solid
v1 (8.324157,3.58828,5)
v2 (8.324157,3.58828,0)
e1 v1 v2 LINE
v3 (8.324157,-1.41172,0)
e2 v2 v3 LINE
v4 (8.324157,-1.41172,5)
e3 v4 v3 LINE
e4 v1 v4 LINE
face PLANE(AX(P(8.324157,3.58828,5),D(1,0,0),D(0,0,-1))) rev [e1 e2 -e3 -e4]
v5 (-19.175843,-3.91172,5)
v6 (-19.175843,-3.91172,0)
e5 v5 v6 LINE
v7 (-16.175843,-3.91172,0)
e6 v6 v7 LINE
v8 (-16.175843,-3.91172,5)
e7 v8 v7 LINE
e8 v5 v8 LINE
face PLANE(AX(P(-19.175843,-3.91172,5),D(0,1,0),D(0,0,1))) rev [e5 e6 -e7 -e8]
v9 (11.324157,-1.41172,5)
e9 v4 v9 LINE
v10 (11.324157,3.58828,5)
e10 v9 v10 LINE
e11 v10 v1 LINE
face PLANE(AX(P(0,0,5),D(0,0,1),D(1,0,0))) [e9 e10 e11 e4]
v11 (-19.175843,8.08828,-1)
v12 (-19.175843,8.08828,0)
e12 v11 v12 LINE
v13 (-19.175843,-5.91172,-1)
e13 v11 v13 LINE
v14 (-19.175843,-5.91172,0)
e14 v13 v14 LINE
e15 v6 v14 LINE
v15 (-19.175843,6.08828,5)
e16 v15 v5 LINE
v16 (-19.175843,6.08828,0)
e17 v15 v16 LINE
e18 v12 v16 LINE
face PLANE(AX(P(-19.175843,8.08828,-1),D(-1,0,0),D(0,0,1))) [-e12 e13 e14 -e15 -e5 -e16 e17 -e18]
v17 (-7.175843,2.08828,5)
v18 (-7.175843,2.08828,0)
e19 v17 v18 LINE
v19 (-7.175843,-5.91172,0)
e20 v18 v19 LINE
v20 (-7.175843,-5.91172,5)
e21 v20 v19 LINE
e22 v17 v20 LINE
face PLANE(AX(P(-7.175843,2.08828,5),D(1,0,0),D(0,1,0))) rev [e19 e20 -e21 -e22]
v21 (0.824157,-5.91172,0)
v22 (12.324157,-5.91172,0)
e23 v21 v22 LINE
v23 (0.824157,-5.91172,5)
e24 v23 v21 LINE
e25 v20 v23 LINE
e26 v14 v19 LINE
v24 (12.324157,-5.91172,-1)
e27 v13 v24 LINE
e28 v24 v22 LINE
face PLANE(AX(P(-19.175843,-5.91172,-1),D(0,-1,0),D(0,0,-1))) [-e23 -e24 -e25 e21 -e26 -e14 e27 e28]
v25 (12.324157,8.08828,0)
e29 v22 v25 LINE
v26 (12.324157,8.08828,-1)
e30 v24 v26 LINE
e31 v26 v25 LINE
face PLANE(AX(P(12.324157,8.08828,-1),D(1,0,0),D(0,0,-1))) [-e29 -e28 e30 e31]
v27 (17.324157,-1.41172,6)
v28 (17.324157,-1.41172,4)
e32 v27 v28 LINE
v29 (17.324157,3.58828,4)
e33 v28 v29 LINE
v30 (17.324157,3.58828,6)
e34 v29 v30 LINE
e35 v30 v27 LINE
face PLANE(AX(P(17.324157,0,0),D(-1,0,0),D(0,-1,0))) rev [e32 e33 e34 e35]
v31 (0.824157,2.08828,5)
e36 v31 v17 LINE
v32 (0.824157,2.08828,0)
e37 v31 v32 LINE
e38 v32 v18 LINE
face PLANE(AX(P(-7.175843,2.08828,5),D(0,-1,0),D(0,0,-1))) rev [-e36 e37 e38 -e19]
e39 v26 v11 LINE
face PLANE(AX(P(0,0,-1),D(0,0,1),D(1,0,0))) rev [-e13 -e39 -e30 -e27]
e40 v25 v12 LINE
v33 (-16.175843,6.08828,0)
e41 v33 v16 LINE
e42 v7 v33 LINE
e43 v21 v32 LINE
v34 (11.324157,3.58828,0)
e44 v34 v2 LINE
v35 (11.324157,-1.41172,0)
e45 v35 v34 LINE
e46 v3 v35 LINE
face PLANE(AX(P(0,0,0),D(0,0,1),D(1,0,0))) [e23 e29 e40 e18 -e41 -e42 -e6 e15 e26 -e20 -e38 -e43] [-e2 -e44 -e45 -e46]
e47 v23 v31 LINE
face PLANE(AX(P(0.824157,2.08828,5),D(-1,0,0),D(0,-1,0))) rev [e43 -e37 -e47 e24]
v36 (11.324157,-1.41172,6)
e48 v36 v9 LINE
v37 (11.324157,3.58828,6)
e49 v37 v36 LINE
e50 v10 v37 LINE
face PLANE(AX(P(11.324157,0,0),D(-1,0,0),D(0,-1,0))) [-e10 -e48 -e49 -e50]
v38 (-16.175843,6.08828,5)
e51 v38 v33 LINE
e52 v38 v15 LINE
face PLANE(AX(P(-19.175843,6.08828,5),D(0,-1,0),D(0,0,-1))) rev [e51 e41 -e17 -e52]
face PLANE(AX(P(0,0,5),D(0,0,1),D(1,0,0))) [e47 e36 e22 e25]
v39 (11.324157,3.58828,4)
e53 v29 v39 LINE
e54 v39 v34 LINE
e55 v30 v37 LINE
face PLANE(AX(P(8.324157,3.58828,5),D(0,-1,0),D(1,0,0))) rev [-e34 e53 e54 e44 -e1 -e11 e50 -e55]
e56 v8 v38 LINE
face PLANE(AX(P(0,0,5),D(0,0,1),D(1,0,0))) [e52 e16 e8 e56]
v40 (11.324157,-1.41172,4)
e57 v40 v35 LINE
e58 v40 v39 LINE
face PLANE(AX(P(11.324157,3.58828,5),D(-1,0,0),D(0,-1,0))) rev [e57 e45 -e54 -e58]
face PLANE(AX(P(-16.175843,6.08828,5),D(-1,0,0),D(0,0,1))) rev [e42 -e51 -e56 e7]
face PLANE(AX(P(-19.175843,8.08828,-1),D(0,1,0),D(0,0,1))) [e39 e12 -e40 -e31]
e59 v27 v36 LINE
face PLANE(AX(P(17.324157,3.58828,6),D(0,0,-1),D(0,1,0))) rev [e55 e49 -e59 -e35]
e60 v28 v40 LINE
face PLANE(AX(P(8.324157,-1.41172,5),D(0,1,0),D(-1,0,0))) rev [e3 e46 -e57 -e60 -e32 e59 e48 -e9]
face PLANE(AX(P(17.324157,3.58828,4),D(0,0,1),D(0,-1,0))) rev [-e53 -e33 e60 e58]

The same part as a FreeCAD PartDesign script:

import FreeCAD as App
import Part
import Sketcher

doc = App.newDocument("Part")
body = doc.addObject("PartDesign::Body", "Body")

# Sketch on XY plane
sketch1 = body.newObject("Sketcher::SketchObject", "Sketch")
sketch1.AttachmentSupport = (doc.getObject("XY_Plane"), [""])
sketch1.MapMode = "FlatFace"
sketch1.addGeometry([
    Part.LineSegment(App.Vector(-19.175843, 8.08828, 0), App.Vector(-19.175843, -5.91172, 0)),
    Part.LineSegment(App.Vector(-19.175843, -5.91172, 0), App.Vector(12.324157, -5.91172, 0)),
    Part.LineSegment(App.Vector(12.324157, -5.91172, 0), App.Vector(12.324157, 8.08828, 0)),
    Part.LineSegment(App.Vector(12.324157, 8.08828, 0), App.Vector(-19.175843, 8.08828, 0)),
], False)
sketch1.addConstraint([
    Sketcher.Constraint("Coincident", 0, 2, 1, 1),
    Sketcher.Constraint("Coincident", 1, 2, 2, 1),
    Sketcher.Constraint("Coincident", 2, 2, 3, 1),
    Sketcher.Constraint("Coincident", 3, 2, 0, 1),
    Sketcher.Constraint("Vertical", 0),
    Sketcher.Constraint("Horizontal", 1),
    Sketcher.Constraint("Vertical", 2),
    Sketcher.Constraint("Horizontal", 3),
    Sketcher.Constraint("DistanceY", 0, 2, 0, 1, 14.0),
    Sketcher.Constraint("DistanceX", 1, 1, 1, 2, 31.5),
    Sketcher.Constraint("DistanceY", 0, 2, -1, 1, 5.91172),
    Sketcher.Constraint("DistanceX", 0, 2, -1, 1, 19.175843),
])
pad1 = body.newObject("PartDesign::Pad", "Pad")
pad1.Profile = sketch1
pad1.Length = 1
pad1.Reversed = True

# Sketch on XY plane
sketch2 = body.newObject("Sketcher::SketchObject", "Sketch001")
sketch2.AttachmentSupport = (doc.getObject("XY_Plane"), [""])
sketch2.MapMode = "FlatFace"
sketch2.addGeometry([
    Part.LineSegment(App.Vector(-7.175843, 2.08828, 0), App.Vector(-7.175843, -5.91172, 0)),
    Part.LineSegment(App.Vector(-7.175843, -5.91172, 0), App.Vector(0.824157, -5.91172, 0)),
    Part.LineSegment(App.Vector(0.824157, -5.91172, 0), App.Vector(0.824157, 2.08828, 0)),
    Part.LineSegment(App.Vector(0.824157, 2.08828, 0), App.Vector(-7.175843, 2.08828, 0)),
], False)
sketch2.addConstraint([
    Sketcher.Constraint("Coincident", 0, 2, 1, 1),
    Sketcher.Constraint("Coincident", 1, 2, 2, 1),
    Sketcher.Constraint("Coincident", 2, 2, 3, 1),
    Sketcher.Constraint("Coincident", 3, 2, 0, 1),
    Sketcher.Constraint("Vertical", 0),
    Sketcher.Constraint("Horizontal", 1),
    Sketcher.Constraint("Vertical", 2),
    Sketcher.Constraint("Horizontal", 3),
    Sketcher.Constraint("Equal", 3, 0),
    Sketcher.Constraint("DistanceX", 1, 1, 1, 2, 8.0),
    Sketcher.Constraint("DistanceY", 0, 2, -1, 1, 5.91172),
    Sketcher.Constraint("DistanceX", 0, 2, -1, 1, 7.175843),
])
pad2 = body.newObject("PartDesign::Pad", "Pad001")
pad2.Profile = sketch2
pad2.Length = 5

# Sketch on XY plane
sketch3 = body.newObject("Sketcher::SketchObject", "Sketch002")
sketch3.AttachmentSupport = (doc.getObject("XY_Plane"), [""])
sketch3.MapMode = "FlatFace"
sketch3.addGeometry([
    Part.LineSegment(App.Vector(8.324157, 3.58828, 0), App.Vector(8.324157, -1.41172, 0)),
    Part.LineSegment(App.Vector(8.324157, -1.41172, 0), App.Vector(11.324157, -1.41172, 0)),
    Part.LineSegment(App.Vector(11.324157, -1.41172, 0), App.Vector(11.324157, 3.58828, 0)),
    Part.LineSegment(App.Vector(11.324157, 3.58828, 0), App.Vector(8.324157, 3.58828, 0)),
], False)
sketch3.addConstraint([
    Sketcher.Constraint("Coincident", 0, 2, 1, 1),
    Sketcher.Constraint("Coincident", 1, 2, 2, 1),
    Sketcher.Constraint("Coincident", 2, 2, 3, 1),
    Sketcher.Constraint("Coincident", 3, 2, 0, 1),
    Sketcher.Constraint("Vertical", 0),
    Sketcher.Constraint("Horizontal", 1),
    Sketcher.Constraint("Vertical", 2),
    Sketcher.Constraint("Horizontal", 3),
    Sketcher.Constraint("DistanceX", 1, 1, 1, 2, 3.0),
    Sketcher.Constraint("DistanceY", 0, 2, 0, 1, 5.0),
    Sketcher.Constraint("DistanceY", 0, 2, -1, 1, 1.41172),
    Sketcher.Constraint("DistanceX", -1, 1, 0, 2, 8.324157),
])
pad3 = body.newObject("PartDesign::Pad", "Pad002")
pad3.Profile = sketch3
pad3.Length = 5

# Sketch on XY plane
sketch4 = body.newObject("Sketcher::SketchObject", "Sketch003")
sketch4.AttachmentSupport = (doc.getObject("XY_Plane"), [""])
sketch4.MapMode = "FlatFace"
sketch4.addGeometry([
    Part.LineSegment(App.Vector(-19.175843, 6.08828, 0), App.Vector(-19.175843, -3.91172, 0)),
    Part.LineSegment(App.Vector(-19.175843, -3.91172, 0), App.Vector(-16.175843, -3.91172, 0)),
    Part.LineSegment(App.Vector(-16.175843, -3.91172, 0), App.Vector(-16.175843, 6.08828, 0)),
    Part.LineSegment(App.Vector(-16.175843, 6.08828, 0), App.Vector(-19.175843, 6.08828, 0)),
], False)
sketch4.addConstraint([
    Sketcher.Constraint("Coincident", 0, 2, 1, 1),
    Sketcher.Constraint("Coincident", 1, 2, 2, 1),
    Sketcher.Constraint("Coincident", 2, 2, 3, 1),
    Sketcher.Constraint("Coincident", 3, 2, 0, 1),
    Sketcher.Constraint("Vertical", 0),
    Sketcher.Constraint("Horizontal", 1),
    Sketcher.Constraint("Vertical", 2),
    Sketcher.Constraint("Horizontal", 3),
    Sketcher.Constraint("DistanceX", 1, 1, 1, 2, 3.0),
    Sketcher.Constraint("DistanceY", 0, 2, 0, 1, 10.0),
    Sketcher.Constraint("DistanceY", 0, 2, -1, 1, 3.91172),
    Sketcher.Constraint("DistanceX", 0, 2, -1, 1, 19.175843),
])
pad4 = body.newObject("PartDesign::Pad", "Pad003")
pad4.Profile = sketch4
pad4.Length = 5

# Sketch on YZ plane
sketch5 = body.newObject("Sketcher::SketchObject", "Sketch004")
sketch5.AttachmentSupport = (doc.getObject("YZ_Plane"), [""])
sketch5.MapMode = "FlatFace"
sketch5.AttachmentOffset = App.Placement(App.Vector(0, 0, 11.324157), App.Rotation())
sketch5.addGeometry([
    Part.LineSegment(App.Vector(3.58828, 6, 0), App.Vector(-1.41172, 6, 0)),
    Part.LineSegment(App.Vector(-1.41172, 6, 0), App.Vector(-1.41172, 4, 0)),
    Part.LineSegment(App.Vector(-1.41172, 4, 0), App.Vector(3.58828, 4, 0)),
    Part.LineSegment(App.Vector(3.58828, 4, 0), App.Vector(3.58828, 6, 0)),
], False)
sketch5.addConstraint([
    Sketcher.Constraint("Coincident", 0, 2, 1, 1),
    Sketcher.Constraint("Coincident", 1, 2, 2, 1),
    Sketcher.Constraint("Coincident", 2, 2, 3, 1),
    Sketcher.Constraint("Coincident", 3, 2, 0, 1),
    Sketcher.Constraint("Horizontal", 0),
    Sketcher.Constraint("Vertical", 1),
    Sketcher.Constraint("Horizontal", 2),
    Sketcher.Constraint("Vertical", 3),
    Sketcher.Constraint("DistanceX", 0, 2, 0, 1, 5.0),
    Sketcher.Constraint("DistanceY", 1, 2, 1, 1, 2.0),
    Sketcher.Constraint("DistanceY", -1, 1, 0, 2, 6.0),
    Sketcher.Constraint("DistanceX", 0, 2, -1, 1, 1.41172),
])
pad5 = body.newObject("PartDesign::Pad", "Pad004")
pad5.Profile = sketch5
pad5.Length = 6

doc.recompute()
